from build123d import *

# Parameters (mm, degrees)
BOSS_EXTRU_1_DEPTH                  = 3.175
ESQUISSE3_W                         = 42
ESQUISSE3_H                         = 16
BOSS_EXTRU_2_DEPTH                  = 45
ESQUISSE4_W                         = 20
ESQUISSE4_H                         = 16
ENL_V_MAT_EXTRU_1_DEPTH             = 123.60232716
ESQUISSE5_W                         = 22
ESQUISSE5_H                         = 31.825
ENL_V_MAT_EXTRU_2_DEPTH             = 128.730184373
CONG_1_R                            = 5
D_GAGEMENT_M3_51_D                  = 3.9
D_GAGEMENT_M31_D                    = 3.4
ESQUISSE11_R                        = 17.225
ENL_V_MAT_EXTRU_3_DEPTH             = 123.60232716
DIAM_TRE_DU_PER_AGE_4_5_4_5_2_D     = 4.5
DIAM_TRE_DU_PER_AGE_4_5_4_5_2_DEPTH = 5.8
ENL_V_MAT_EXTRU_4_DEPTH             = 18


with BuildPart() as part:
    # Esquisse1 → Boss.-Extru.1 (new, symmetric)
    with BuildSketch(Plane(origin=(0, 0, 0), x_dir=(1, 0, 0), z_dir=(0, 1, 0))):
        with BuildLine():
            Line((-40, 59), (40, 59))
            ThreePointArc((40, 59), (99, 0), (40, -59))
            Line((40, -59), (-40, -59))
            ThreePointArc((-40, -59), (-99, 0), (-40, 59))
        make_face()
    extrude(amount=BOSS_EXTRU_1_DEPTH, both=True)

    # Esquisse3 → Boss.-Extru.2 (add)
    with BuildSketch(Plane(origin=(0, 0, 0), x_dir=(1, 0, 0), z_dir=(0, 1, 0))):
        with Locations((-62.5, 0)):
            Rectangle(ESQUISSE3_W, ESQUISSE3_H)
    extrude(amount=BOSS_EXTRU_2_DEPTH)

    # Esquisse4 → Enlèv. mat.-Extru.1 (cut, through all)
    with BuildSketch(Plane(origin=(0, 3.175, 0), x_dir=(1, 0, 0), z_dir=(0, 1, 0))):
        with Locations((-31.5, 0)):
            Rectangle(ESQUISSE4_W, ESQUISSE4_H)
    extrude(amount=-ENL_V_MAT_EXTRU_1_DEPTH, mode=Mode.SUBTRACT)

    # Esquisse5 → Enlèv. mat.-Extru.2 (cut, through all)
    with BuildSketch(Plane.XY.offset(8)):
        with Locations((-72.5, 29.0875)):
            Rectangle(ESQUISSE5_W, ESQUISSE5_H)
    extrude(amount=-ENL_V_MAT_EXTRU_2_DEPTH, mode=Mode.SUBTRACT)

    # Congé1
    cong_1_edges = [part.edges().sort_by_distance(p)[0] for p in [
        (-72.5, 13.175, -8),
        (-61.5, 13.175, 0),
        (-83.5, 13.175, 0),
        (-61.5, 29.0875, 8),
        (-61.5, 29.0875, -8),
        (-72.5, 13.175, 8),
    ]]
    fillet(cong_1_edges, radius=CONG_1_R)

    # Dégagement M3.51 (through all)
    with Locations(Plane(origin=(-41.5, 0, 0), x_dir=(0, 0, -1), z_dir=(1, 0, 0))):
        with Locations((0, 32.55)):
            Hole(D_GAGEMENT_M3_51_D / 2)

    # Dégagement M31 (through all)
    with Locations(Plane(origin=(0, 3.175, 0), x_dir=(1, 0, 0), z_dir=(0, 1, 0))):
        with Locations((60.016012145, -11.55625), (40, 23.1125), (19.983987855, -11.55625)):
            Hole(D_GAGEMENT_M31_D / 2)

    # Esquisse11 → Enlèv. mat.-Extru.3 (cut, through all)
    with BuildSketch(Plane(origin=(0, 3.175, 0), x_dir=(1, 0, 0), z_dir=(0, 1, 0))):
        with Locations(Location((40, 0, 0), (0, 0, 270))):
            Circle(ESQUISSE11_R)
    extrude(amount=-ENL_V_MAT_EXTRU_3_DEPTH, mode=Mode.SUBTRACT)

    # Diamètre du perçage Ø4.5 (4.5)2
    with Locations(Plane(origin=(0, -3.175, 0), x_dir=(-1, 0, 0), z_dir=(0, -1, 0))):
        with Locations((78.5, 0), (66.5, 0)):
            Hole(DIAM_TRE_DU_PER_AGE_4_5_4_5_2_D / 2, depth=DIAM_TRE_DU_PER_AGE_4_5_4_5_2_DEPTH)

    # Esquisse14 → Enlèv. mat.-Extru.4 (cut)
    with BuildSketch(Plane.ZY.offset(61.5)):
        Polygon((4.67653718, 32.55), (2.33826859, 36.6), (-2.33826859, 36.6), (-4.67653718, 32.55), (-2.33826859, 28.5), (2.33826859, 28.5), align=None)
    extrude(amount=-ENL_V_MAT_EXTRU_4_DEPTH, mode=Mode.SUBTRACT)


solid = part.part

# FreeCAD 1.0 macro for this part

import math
import FreeCAD as App
import Part
import Sketcher
from FreeCAD import Vector
Q = App.Units.Quantity


def edges_at(feature, points):
    """Names of the edges that pass closest to the given points."""
    edges = feature.Shape.Edges
    near = lambda p: min(range(len(edges)), key=lambda i: edges[i].distToShape(Part.Vertex(*p))[0])
    return sorted({f"Edge{near(p) + 1}" for p in points})


def add_polygon(sketch, points):
    """Adds a closed chain of lines whose ends are joined by coincident constraints."""
    first, n = sketch.GeometryCount, len(points)
    for a, b in zip(points, points[1:] + points[:1]):
        sketch.addGeometry(Part.LineSegment(App.Vector(*a, 0), App.Vector(*b, 0)), False)
    for i in range(n):
        sketch.addConstraint(Sketcher.Constraint("Coincident", first + i, 2, first + (i + 1) % n, 1))

doc = App.newDocument("Part")
body = doc.addObject("PartDesign::Body", "Body")

# Sketch on XZ plane
sketch1 = body.newObject("Sketcher::SketchObject", "Sketch")
sketch1.AttachmentSupport = (doc.getObject("XZ_Plane"), [""])
sketch1.MapMode = "FlatFace"
sketch1.addGeometry([
    Part.LineSegment(Vector(40, -59, 0), Vector(-40, -59, 0)),
    Part.ArcOfCircle(Part.Circle(Vector(-40, 0, 0), Vector(0, 0, 1), 59), math.radians(90), math.radians(270)),
    Part.LineSegment(Vector(-40, 59, 0), Vector(40, 59, 0)),
    Part.ArcOfCircle(Part.Circle(Vector(40, 0, 0), Vector(0, 0, 1), 59), math.radians(-90), math.radians(90)),
], False)
sketch1.addConstraint([
    Sketcher.Constraint("Tangent", 0, 2, 1, 2),
    Sketcher.Constraint("Tangent", 1, 1, 2, 1),
    Sketcher.Constraint("Tangent", 2, 2, 3, 2),
    Sketcher.Constraint("Tangent", 3, 1, 0, 1),
    Sketcher.Constraint("Horizontal", 0),
    Sketcher.Constraint("Horizontal", 2),
    Sketcher.Constraint("Symmetric", 1, 3, 3, 3, -1, 1),
    Sketcher.Constraint("Radius", 1, Q("59 mm")),
    Sketcher.Constraint("DistanceX", 0, 2, 0, 1, Q("80 mm")),
])
pad1 = body.newObject("PartDesign::Pad", "Pad")
pad1.Profile = sketch1
pad1.Length = 6.35
pad1.Midplane = True

# Sketch on XZ plane
sketch2 = body.newObject("Sketcher::SketchObject", "Sketch001")
sketch2.AttachmentSupport = (doc.getObject("XZ_Plane"), [""])
sketch2.MapMode = "FlatFace"
add_polygon(sketch2, [(-84, -8), (-84, 8), (-42, 8), (-42, -8)])  # lines 0-3
sketch2.addConstraint([
    Sketcher.Constraint("Vertical", 0),
    Sketcher.Constraint("Horizontal", 1),
    Sketcher.Constraint("Vertical", 2),
    Sketcher.Constraint("Horizontal", 3),
    Sketcher.Constraint("DistanceX", 1, 1, 1, 2, Q("42 mm")),
    Sketcher.Constraint("DistanceY", 0, 1, 0, 2, Q("16 mm")),
    Sketcher.Constraint("DistanceY", -1, 1, 0, 2, Q("8 mm")),
    Sketcher.Constraint("DistanceX", 0, 2, -1, 1, Q("83.5 mm")),
])
pad2 = body.newObject("PartDesign::Pad", "Pad001")
pad2.Profile = sketch2
pad2.Length = 45
pad2.Reversed = True

# Sketch on XZ plane
sketch3 = body.newObject("Sketcher::SketchObject", "Sketch002")
sketch3.AttachmentSupport = (doc.getObject("XZ_Plane"), [""])
sketch3.MapMode = "FlatFace"
sketch3.AttachmentOffset = App.Placement(Vector(0, 0, -3.175), App.Rotation())
add_polygon(sketch3, [(-42, -8), (-42, 8), (-22, 8), (-22, -8)])  # lines 0-3
sketch3.addConstraint([
    Sketcher.Constraint("Vertical", 0),
    Sketcher.Constraint("Horizontal", 1),
    Sketcher.Constraint("Vertical", 2),
    Sketcher.Constraint("Horizontal", 3),
    Sketcher.Constraint("DistanceX", 1, 1, 1, 2, Q("20 mm")),
    Sketcher.Constraint("DistanceY", 0, 1, 0, 2, Q("16 mm")),
    Sketcher.Constraint("DistanceY", -1, 1, 0, 2, Q("8 mm")),
    Sketcher.Constraint("DistanceX", 0, 2, -1, 1, Q("41.5 mm")),
])
pocket1 = body.newObject("PartDesign::Pocket", "Pocket")
pocket1.Profile = sketch3
pocket1.Type = "ThroughAll"
pocket1.Reversed = True

# Sketch on XY plane
sketch4 = body.newObject("Sketcher::SketchObject", "Sketch003")
sketch4.AttachmentSupport = (doc.getObject("XY_Plane"), [""])
sketch4.MapMode = "FlatFace"
sketch4.AttachmentOffset = App.Placement(Vector(0, 0, 8), App.Rotation())
add_polygon(sketch4, [(-84, 45), (-84, 13), (-62, 13), (-62, 45)])  # lines 0-3
sketch4.addConstraint([
    Sketcher.Constraint("Vertical", 0),
    Sketcher.Constraint("Horizontal", 1),
    Sketcher.Constraint("Vertical", 2),
    Sketcher.Constraint("Horizontal", 3),
    Sketcher.Constraint("DistanceX", 1, 1, 1, 2, Q("22 mm")),
    Sketcher.Constraint("DistanceY", -1, 1, 2, 2, Q("45 mm")),
    Sketcher.Constraint("DistanceX", 0, 2, -1, 1, Q("83.5 mm")),
    Sketcher.Constraint("DistanceY", 0, 2, 0, 1, Q("31.825 mm")),
])
pocket2 = body.newObject("PartDesign::Pocket", "Pocket001")
pocket2.Profile = sketch4
pocket2.Type = "ThroughAll"
doc.recompute()

fillet = body.newObject("PartDesign::Fillet", "Fillet")
fillet.Base = (pocket2, edges_at(pocket2, [
    (-72.5, 13.175, -8),
    (-61.5, 13.175, 0),
    (-83.5, 13.175, 0),
    (-61.5, 29.087, 8),
    (-61.5, 29.087, -8),
    (-72.5, 13.175, 8),
]))
fillet.Radius = 5

# Sketch on YZ plane
sketch5 = body.newObject("Sketcher::SketchObject", "Sketch004")
sketch5.AttachmentSupport = (doc.getObject("YZ_Plane"), [""])
sketch5.MapMode = "FlatFace"
sketch5.AttachmentOffset = App.Placement(Vector(0, 0, -41.5), App.Rotation())
sketch5.addGeometry(Part.Circle(Vector(32.5, 0, 0), Vector(0, 0, 1), 1.9), False)
sketch5.addConstraint([
    Sketcher.Constraint("PointOnObject", 0, 3, -1),
    Sketcher.Constraint("Diameter", 0, Q("3.9 mm")),
    Sketcher.Constraint("DistanceX", -1, 1, 0, 3, Q("32.55 mm")),
])
doc.recompute()
hole = body.newObject("PartDesign::Hole", "Hole")
hole.Profile = sketch5
hole.ThreadType = "None"
hole.Diameter = 3.9
hole.DepthType = "ThroughAll"

# Sketch on XZ plane
sketch6 = body.newObject("Sketcher::SketchObject", "Sketch005")
sketch6.AttachmentSupport = (doc.getObject("XZ_Plane"), [""])
sketch6.MapMode = "FlatFace"
sketch6.AttachmentOffset = App.Placement(Vector(0, 0, -3.175), App.Rotation())
sketch6.addGeometry([
    Part.Circle(Vector(60, 11.6, 0), Vector(0, 0, 1), 1.7),
    Part.Circle(Vector(40, -23.1, 0), Vector(0, 0, 1), 1.7),
    Part.Circle(Vector(20, 11.6, 0), Vector(0, 0, 1), 1.7),
], False)
sketch6.addConstraint([
    Sketcher.Constraint("Equal", 0, 1),
    Sketcher.Constraint("Equal", 1, 2),
    Sketcher.Constraint("Horizontal", 0, 3, 2, 3),
    Sketcher.Constraint("Diameter", 0, Q("3.4 mm")),
    Sketcher.Constraint("DistanceX", -1, 1, 1, 3, Q("40 mm")),
    Sketcher.Constraint("DistanceY", 1, 3, -1, 1, Q("23.1125 mm")),
    Sketcher.Constraint("DistanceY", -1, 1, 0, 3, Q("11.55625 mm")),
    Sketcher.Constraint("DistanceX", -1, 1, 0, 3, Q("60.016012 mm")),
    Sketcher.Constraint("DistanceX", -1, 1, 2, 3, Q("19.983988 mm")),
])
doc.recompute()
hole2 = body.newObject("PartDesign::Hole", "Hole001")
hole2.Profile = sketch6
hole2.ThreadType = "None"
hole2.Diameter = 3.4
hole2.DepthType = "ThroughAll"
hole2.Reversed = True

# Sketch on XZ plane
sketch7 = body.newObject("Sketcher::SketchObject", "Sketch006")
sketch7.AttachmentSupport = (doc.getObject("XZ_Plane"), [""])
sketch7.MapMode = "FlatFace"
sketch7.AttachmentOffset = App.Placement(Vector(0, 0, -3.175), App.Rotation())
sketch7.addGeometry(Part.Circle(Vector(40, 0, 0), Vector(0, 0, 1), 17), False)
sketch7.addConstraint([
    Sketcher.Constraint("PointOnObject", 0, 3, -1),
    Sketcher.Constraint("Diameter", 0, Q("34.45 mm")),
    Sketcher.Constraint("DistanceX", -1, 1, 0, 3, Q("40 mm")),
])
pocket3 = body.newObject("PartDesign::Pocket", "Pocket002")
pocket3.Profile = sketch7
pocket3.Type = "ThroughAll"
pocket3.Reversed = True

# Sketch on XZ plane
sketch8 = body.newObject("Sketcher::SketchObject", "Sketch007")
sketch8.AttachmentSupport = (doc.getObject("XZ_Plane"), [""])
sketch8.MapMode = "FlatFace"
sketch8.AttachmentOffset = App.Placement(Vector(0, 0, 3.175), App.Rotation())
sketch8.addGeometry([
    Part.Circle(Vector(-78.5, 0, 0), Vector(0, 0, 1), 2.2),
    Part.Circle(Vector(-66.5, 0, 0), Vector(0, 0, 1), 2.2),
], False)
sketch8.addConstraint([
    Sketcher.Constraint("Equal", 0, 1),
    Sketcher.Constraint("PointOnObject", 0, 3, -1),
    Sketcher.Constraint("PointOnObject", 1, 3, -1),
    Sketcher.Constraint("Diameter", 0, Q("4.5 mm")),
    Sketcher.Constraint("DistanceX", 0, 3, 1, 3, Q("12 mm")),
    Sketcher.Constraint("DistanceX", 0, 3, -1, 1, Q("78.5 mm")),
])
doc.recompute()
hole3 = body.newObject("PartDesign::Hole", "Hole002")
hole3.Profile = sketch8
hole3.ThreadType = "None"
hole3.Diameter = 4.5
hole3.DepthType = "Dimension"
hole3.Depth = 5.8
hole3.DrillPoint = "Flat"

# Sketch on YZ plane
sketch9 = body.newObject("Sketcher::SketchObject", "Sketch008")
sketch9.AttachmentSupport = (doc.getObject("YZ_Plane"), [""])
sketch9.MapMode = "FlatFace"
sketch9.AttachmentOffset = App.Placement(Vector(0, 0, -61.5), App.Rotation())
add_polygon(sketch9, [(32.5, 4.7), (36.6, 2.3), (36.6, -2.3), (32.5, -4.7), (28.5, -2.3), (28.5, 2.3)])  # lines 0-5
sketch9.addConstraint([
    Sketcher.Constraint("Vertical", 1),
    Sketcher.Constraint("Vertical", 4),
    Sketcher.Constraint("Symmetric", 2, 2, 5, 2, -1),
    Sketcher.Constraint("Parallel", 0, 3),
    Sketcher.Constraint("Parallel", 2, 5),
    Sketcher.Constraint("Horizontal", 1, 2, 3, 2),
    Sketcher.Constraint("Horizontal", 0, 2, 4, 2),
    Sketcher.Constraint("Angle", 0, Q("-30 deg")),
    Sketcher.Constraint("DistanceX", -1, 1, 0, 2, Q("36.6 mm")),
    Sketcher.Constraint("DistanceX", -1, 1, 3, 2, Q("28.5 mm")),
    Sketcher.Constraint("DistanceY", 1, 2, 1, 1, Q("4.676537 mm")),
])
pocket4 = body.newObject("PartDesign::Pocket", "Pocket003")
pocket4.Profile = sketch9
pocket4.Length = 18
pocket4.Reversed = True

doc.recompute()
